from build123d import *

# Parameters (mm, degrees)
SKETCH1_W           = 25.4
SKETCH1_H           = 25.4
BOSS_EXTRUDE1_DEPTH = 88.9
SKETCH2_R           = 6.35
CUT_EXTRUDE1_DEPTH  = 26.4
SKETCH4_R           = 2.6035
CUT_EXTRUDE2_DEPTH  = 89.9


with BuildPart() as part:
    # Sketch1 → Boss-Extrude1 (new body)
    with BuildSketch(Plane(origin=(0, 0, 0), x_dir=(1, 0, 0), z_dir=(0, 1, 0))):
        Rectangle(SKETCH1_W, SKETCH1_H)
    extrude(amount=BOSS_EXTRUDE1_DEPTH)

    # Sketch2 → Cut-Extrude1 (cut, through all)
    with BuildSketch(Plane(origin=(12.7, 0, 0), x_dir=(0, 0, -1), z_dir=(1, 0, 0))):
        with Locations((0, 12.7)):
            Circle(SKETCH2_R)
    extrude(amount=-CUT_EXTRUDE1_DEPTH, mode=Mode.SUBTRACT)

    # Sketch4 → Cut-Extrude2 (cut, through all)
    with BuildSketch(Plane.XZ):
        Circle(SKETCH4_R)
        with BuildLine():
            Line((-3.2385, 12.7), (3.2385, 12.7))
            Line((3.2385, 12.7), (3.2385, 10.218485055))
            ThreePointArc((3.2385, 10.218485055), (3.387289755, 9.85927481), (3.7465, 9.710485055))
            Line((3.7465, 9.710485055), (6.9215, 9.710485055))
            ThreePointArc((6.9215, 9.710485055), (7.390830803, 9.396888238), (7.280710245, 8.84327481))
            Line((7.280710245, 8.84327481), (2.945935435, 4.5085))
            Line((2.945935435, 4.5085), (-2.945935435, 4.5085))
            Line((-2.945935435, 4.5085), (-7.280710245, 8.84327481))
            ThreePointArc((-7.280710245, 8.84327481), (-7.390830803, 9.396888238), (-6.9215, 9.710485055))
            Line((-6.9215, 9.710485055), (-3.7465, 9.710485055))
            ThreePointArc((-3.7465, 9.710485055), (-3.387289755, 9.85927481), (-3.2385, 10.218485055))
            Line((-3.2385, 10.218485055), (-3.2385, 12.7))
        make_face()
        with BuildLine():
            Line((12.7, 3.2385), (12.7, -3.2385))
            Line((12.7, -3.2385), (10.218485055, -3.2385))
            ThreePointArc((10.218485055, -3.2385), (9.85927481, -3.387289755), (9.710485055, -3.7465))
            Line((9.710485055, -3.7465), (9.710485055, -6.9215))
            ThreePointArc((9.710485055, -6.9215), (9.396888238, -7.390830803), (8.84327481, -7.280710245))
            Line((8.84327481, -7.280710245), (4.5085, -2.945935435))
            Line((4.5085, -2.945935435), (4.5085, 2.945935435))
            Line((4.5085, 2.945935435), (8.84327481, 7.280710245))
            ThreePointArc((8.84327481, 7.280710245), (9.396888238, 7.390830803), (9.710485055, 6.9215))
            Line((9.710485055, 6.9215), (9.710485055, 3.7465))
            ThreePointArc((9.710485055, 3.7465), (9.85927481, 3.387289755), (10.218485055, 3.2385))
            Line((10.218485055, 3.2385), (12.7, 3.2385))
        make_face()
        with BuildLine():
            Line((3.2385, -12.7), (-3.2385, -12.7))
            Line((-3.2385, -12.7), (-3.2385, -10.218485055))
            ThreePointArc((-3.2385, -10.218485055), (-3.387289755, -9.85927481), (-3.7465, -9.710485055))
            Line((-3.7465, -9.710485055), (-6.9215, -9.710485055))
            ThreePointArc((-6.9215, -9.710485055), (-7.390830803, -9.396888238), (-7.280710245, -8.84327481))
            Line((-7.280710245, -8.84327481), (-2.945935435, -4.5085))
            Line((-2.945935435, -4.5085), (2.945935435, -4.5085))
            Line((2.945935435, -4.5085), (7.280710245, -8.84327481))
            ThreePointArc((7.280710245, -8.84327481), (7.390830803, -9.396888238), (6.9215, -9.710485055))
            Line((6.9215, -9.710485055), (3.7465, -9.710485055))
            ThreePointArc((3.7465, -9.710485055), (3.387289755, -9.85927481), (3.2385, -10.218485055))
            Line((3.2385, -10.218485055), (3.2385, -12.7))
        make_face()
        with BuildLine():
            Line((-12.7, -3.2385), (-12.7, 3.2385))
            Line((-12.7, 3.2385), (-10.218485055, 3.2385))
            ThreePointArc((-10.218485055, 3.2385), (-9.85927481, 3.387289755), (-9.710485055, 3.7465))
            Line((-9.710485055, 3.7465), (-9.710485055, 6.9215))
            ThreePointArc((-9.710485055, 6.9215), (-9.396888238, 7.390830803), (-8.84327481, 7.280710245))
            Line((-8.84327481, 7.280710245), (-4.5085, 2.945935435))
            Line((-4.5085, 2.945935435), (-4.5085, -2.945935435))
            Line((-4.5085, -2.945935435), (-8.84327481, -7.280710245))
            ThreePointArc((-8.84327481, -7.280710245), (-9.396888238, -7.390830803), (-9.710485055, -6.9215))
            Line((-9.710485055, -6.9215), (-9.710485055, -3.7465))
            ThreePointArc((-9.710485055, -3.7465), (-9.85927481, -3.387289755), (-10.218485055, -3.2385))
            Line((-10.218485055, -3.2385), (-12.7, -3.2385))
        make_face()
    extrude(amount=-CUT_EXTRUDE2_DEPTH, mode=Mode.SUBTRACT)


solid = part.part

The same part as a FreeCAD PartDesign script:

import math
import FreeCAD as App
import Part
import Sketcher
Q = App.Units.Quantity


def add_polygon(sketch, points):
    """Adds a closed chain of lines whose ends are joined by coincident constraints."""
    first, n = sketch.GeometryCount, len(points)
    for a, b in zip(points, points[1:] + points[:1]):
        sketch.addGeometry(Part.LineSegment(App.Vector(*a, 0), App.Vector(*b, 0)), False)
    for i in range(n):
        sketch.addConstraint(Sketcher.Constraint("Coincident", first + i, 2, first + (i + 1) % n, 1))

doc = App.newDocument("Part")
params = doc.addObject("Spreadsheet::Sheet", "Params")
for row, (alias, value) in enumerate([
    ("sketch1_width", "1 in"),
    ("pad1_length", "3.5 in"),
    ("sketch2_diameter", "0.5 in"),
    ("sketch3_radius", "0.02 in"),
    ("sketch3_diameter", "0.205 in"),
    ("sketch3_width", "0.255 in"),
    ("sketch3_width2", "0.125 in"),
], start=1):
    params.set(f"A{row}", alias)
    params.set(f"B{row}", "=" + value)
    params.setAlias(f"B{row}", alias)

body = doc.addObject("PartDesign::Body", "Body")

sketch1 = body.newObject("Sketcher::SketchObject", "Sketch")
sketch1.AttachmentSupport = (doc.getObject("XZ_Plane"), [""])
sketch1.MapMode = "FlatFace"
add_polygon(sketch1, [(-13, -13), (-13, 13), (13, 13), (13, -13)])
sketch1.addConstraint(Sketcher.Constraint("Vertical", 0))
sketch1.addConstraint(Sketcher.Constraint("Horizontal", 1))
sketch1.addConstraint(Sketcher.Constraint("Vertical", 2))
sketch1.addConstraint(Sketcher.Constraint("Horizontal", 3))
sketch1.addConstraint(Sketcher.Constraint("Symmetric", 0, 2, 2, 2, -1, 1))
sketch1.addConstraint(Sketcher.Constraint("Equal", 3, 0))
sketch1.addConstraint(Sketcher.Constraint("DistanceX", 1, 1, 1, 2, Q("1 in")))
sketch1.setExpression("Constraints[10]", "Params.sketch1_width")
pad1 = body.newObject("PartDesign::Pad", "Pad")
pad1.Profile = sketch1
pad1.setExpression("Length", "Params.pad1_length")
pad1.Reversed = True

sketch2 = body.newObject("Sketcher::SketchObject", "Sketch001")
sketch2.AttachmentSupport = (doc.getObject("YZ_Plane"), [""])
sketch2.MapMode = "FlatFace"
sketch2.AttachmentOffset = App.Placement(App.Vector(0, 0, 0.5 * 25.4), App.Rotation())
sketch2.addGeometry(Part.Circle(App.Vector(13, 0, 0), App.Vector(0, 0, 1), 6), False)
sketch2.addConstraint(Sketcher.Constraint("PointOnObject", 0, 3, -1))
sketch2.addConstraint(Sketcher.Constraint("Diameter", 0, Q("0.5 in")))
sketch2.addConstraint(Sketcher.Constraint("DistanceX", -1, 1, 0, 3, Q("0.5 in")))
sketch2.setExpression("Constraints[1]", "Params.sketch2_diameter")
pocket1 = body.newObject("PartDesign::Pocket", "Pocket")
pocket1.Profile = sketch2
pocket1.Type = "ThroughAll"

sketch3 = body.newObject("Sketcher::SketchObject", "Sketch002")
sketch3.AttachmentSupport = (doc.getObject("XZ_Plane"), [""])
sketch3.MapMode = "FlatFace"
sketch3.addGeometry(Part.Circle(App.Vector(0, 0, 0), App.Vector(0, 0, 1), 2.6), False)
sketch3.addGeometry(Part.LineSegment(App.Vector(3.2, 12.7, 0), App.Vector(-3.2, 12.7, 0)), False)
sketch3.addGeometry(Part.LineSegment(App.Vector(-3.2, 12.7, 0), App.Vector(-3.2, 10.2, 0)), False)
sketch3.addGeometry(Part.ArcOfCircle(Part.Circle(App.Vector(-3.7, 10.2, 0), App.Vector(0, 0, 1), 0.5), math.radians(-90), math.radians(0)), False)
sketch3.addGeometry(Part.LineSegment(App.Vector(-3.7, 9.7, 0), App.Vector(-6.9, 9.7, 0)), False)
sketch3.addGeometry(Part.ArcOfCircle(Part.Circle(App.Vector(-6.9, 9.2, 0), App.Vector(0, 0, 1), 0.5), math.radians(90), math.radians(225)), False)
sketch3.addGeometry(Part.LineSegment(App.Vector(-7.3, 8.8, 0), App.Vector(-2.9, 4.5, 0)), False)
sketch3.addGeometry(Part.LineSegment(App.Vector(-2.9, 4.5, 0), App.Vector(2.9, 4.5, 0)), False)
sketch3.addGeometry(Part.LineSegment(App.Vector(2.9, 4.5, 0), App.Vector(7.3, 8.8, 0)), False)
sketch3.addGeometry(Part.ArcOfCircle(Part.Circle(App.Vector(6.9, 9.2, 0), App.Vector(0, 0, 1), 0.5), math.radians(-45), math.radians(90)), False)
sketch3.addGeometry(Part.LineSegment(App.Vector(6.9, 9.7, 0), App.Vector(3.7, 9.7, 0)), False)
sketch3.addGeometry(Part.ArcOfCircle(Part.Circle(App.Vector(3.7, 10.2, 0), App.Vector(0, 0, 1), 0.5), math.radians(180), math.radians(270)), False)
sketch3.addGeometry(Part.LineSegment(App.Vector(3.2, 10.2, 0), App.Vector(3.2, 12.7, 0)), False)
sketch3.addGeometry(Part.LineSegment(App.Vector(12.7, -3.2, 0), App.Vector(12.7, 3.2, 0)), False)
sketch3.addGeometry(Part.LineSegment(App.Vector(12.7, 3.2, 0), App.Vector(10.2, 3.2, 0)), False)
sketch3.addGeometry(Part.ArcOfCircle(Part.Circle(App.Vector(10.2, 3.7, 0), App.Vector(0, 0, 1), 0.5), math.radians(180), math.radians(270)), False)
sketch3.addGeometry(Part.LineSegment(App.Vector(9.7, 3.7, 0), App.Vector(9.7, 6.9, 0)), False)
sketch3.addGeometry(Part.ArcOfCircle(Part.Circle(App.Vector(9.2, 6.9, 0), App.Vector(0, 0, 1), 0.5), math.radians(0), math.radians(135)), False)
sketch3.addGeometry(Part.LineSegment(App.Vector(8.8, 7.3, 0), App.Vector(4.5, 2.9, 0)), False)
sketch3.addGeometry(Part.LineSegment(App.Vector(4.5, 2.9, 0), App.Vector(4.5, -2.9, 0)), False)
sketch3.addGeometry(Part.LineSegment(App.Vector(4.5, -2.9, 0), App.Vector(8.8, -7.3, 0)), False)
sketch3.addGeometry(Part.ArcOfCircle(Part.Circle(App.Vector(9.2, -6.9, 0), App.Vector(0, 0, 1), 0.5), math.radians(-135), math.radians(0)), False)
sketch3.addGeometry(Part.LineSegment(App.Vector(9.7, -6.9, 0), App.Vector(9.7, -3.7, 0)), False)
sketch3.addGeometry(Part.ArcOfCircle(Part.Circle(App.Vector(10.2, -3.7, 0), App.Vector(0, 0, 1), 0.5), math.radians(90), math.radians(180)), False)
sketch3.addGeometry(Part.LineSegment(App.Vector(10.2, -3.2, 0), App.Vector(12.7, -3.2, 0)), False)
sketch3.addGeometry(Part.LineSegment(App.Vector(-3.2, -12.7, 0), App.Vector(3.2, -12.7, 0)), False)
sketch3.addGeometry(Part.LineSegment(App.Vector(3.2, -12.7, 0), App.Vector(3.2, -10.2, 0)), False)
sketch3.addGeometry(Part.ArcOfCircle(Part.Circle(App.Vector(3.7, -10.2, 0), App.Vector(0, 0, 1), 0.5), math.radians(90), math.radians(180)), False)
sketch3.addGeometry(Part.LineSegment(App.Vector(3.7, -9.7, 0), App.Vector(6.9, -9.7, 0)), False)
sketch3.addGeometry(Part.ArcOfCircle(Part.Circle(App.Vector(6.9, -9.2, 0), App.Vector(0, 0, 1), 0.5), math.radians(-90), math.radians(45)), False)
sketch3.addGeometry(Part.LineSegment(App.Vector(7.3, -8.8, 0), App.Vector(2.9, -4.5, 0)), False)
sketch3.addGeometry(Part.LineSegment(App.Vector(2.9, -4.5, 0), App.Vector(-2.9, -4.5, 0)), False)
sketch3.addGeometry(Part.LineSegment(App.Vector(-2.9, -4.5, 0), App.Vector(-7.3, -8.8, 0)), False)
sketch3.addGeometry(Part.ArcOfCircle(Part.Circle(App.Vector(-6.9, -9.2, 0), App.Vector(0, 0, 1), 0.5), math.radians(135), math.radians(270)), False)
sketch3.addGeometry(Part.LineSegment(App.Vector(-6.9, -9.7, 0), App.Vector(-3.7, -9.7, 0)), False)
sketch3.addGeometry(Part.ArcOfCircle(Part.Circle(App.Vector(-3.7, -10.2, 0), App.Vector(0, 0, 1), 0.5), math.radians(0), math.radians(90)), False)
sketch3.addGeometry(Part.LineSegment(App.Vector(-3.2, -10.2, 0), App.Vector(-3.2, -12.7, 0)), False)
sketch3.addGeometry(Part.LineSegment(App.Vector(-12.7, 3.2, 0), App.Vector(-12.7, -3.2, 0)), False)
sketch3.addGeometry(Part.LineSegment(App.Vector(-12.7, -3.2, 0), App.Vector(-10.2, -3.2, 0)), False)
sketch3.addGeometry(Part.ArcOfCircle(Part.Circle(App.Vector(-10.2, -3.7, 0), App.Vector(0, 0, 1), 0.5), math.radians(0), math.radians(90)), False)
sketch3.addGeometry(Part.LineSegment(App.Vector(-9.7, -3.7, 0), App.Vector(-9.7, -6.9, 0)), False)
sketch3.addGeometry(Part.ArcOfCircle(Part.Circle(App.Vector(-9.2, -6.9, 0), App.Vector(0, 0, 1), 0.5), math.radians(180), math.radians(315)), False)
sketch3.addGeometry(Part.LineSegment(App.Vector(-8.8, -7.3, 0), App.Vector(-4.5, -2.9, 0)), False)
sketch3.addGeometry(Part.LineSegment(App.Vector(-4.5, -2.9, 0), App.Vector(-4.5, 2.9, 0)), False)
sketch3.addGeometry(Part.LineSegment(App.Vector(-4.5, 2.9, 0), App.Vector(-8.8, 7.3, 0)), False)
sketch3.addGeometry(Part.ArcOfCircle(Part.Circle(App.Vector(-9.2, 6.9, 0), App.Vector(0, 0, 1), 0.5), math.radians(45), math.radians(180)), False)
sketch3.addGeometry(Part.LineSegment(App.Vector(-9.7, 6.9, 0), App.Vector(-9.7, 3.7, 0)), False)
sketch3.addGeometry(Part.ArcOfCircle(Part.Circle(App.Vector(-10.2, 3.7, 0), App.Vector(0, 0, 1), 0.5), math.radians(-90), math.radians(0)), False)
sketch3.addGeometry(Part.LineSegment(App.Vector(-10.2, 3.2, 0), App.Vector(-12.7, 3.2, 0)), False)
sketch3.addConstraint(Sketcher.Constraint("Coincident", 1, 2, 2, 1))
sketch3.addConstraint(Sketcher.Constraint("Tangent", 2, 2, 3, 2))
sketch3.addConstraint(Sketcher.Constraint("Tangent", 3, 1, 4, 1))
sketch3.addConstraint(Sketcher.Constraint("Tangent", 4, 2, 5, 1))
sketch3.addConstraint(Sketcher.Constraint("Tangent", 5, 2, 6, 1))
sketch3.addConstraint(Sketcher.Constraint("Coincident", 6, 2, 7, 1))
sketch3.addConstraint(Sketcher.Constraint("Coincident", 7, 2, 8, 1))
sketch3.addConstraint(Sketcher.Constraint("Tangent", 8, 2, 9, 1))
sketch3.addConstraint(Sketcher.Constraint("Tangent", 9, 2, 10, 1))
sketch3.addConstraint(Sketcher.Constraint("Tangent", 10, 2, 11, 2))
sketch3.addConstraint(Sketcher.Constraint("Tangent", 11, 1, 12, 1))
sketch3.addConstraint(Sketcher.Constraint("Coincident", 12, 2, 1, 1))
sketch3.addConstraint(Sketcher.Constraint("Coincident", 13, 2, 14, 1))
sketch3.addConstraint(Sketcher.Constraint("Tangent", 14, 2, 15, 2))
sketch3.addConstraint(Sketcher.Constraint("Tangent", 15, 1, 16, 1))
sketch3.addConstraint(Sketcher.Constraint("Tangent", 16, 2, 17, 1))
sketch3.addConstraint(Sketcher.Constraint("Tangent", 17, 2, 18, 1))
sketch3.addConstraint(Sketcher.Constraint("Coincident", 18, 2, 19, 1))
sketch3.addConstraint(Sketcher.Constraint("Coincident", 19, 2, 20, 1))
sketch3.addConstraint(Sketcher.Constraint("Tangent", 20, 2, 21, 1))
sketch3.addConstraint(Sketcher.Constraint("Tangent", 21, 2, 22, 1))
sketch3.addConstraint(Sketcher.Constraint("Tangent", 22, 2, 23, 2))
sketch3.addConstraint(Sketcher.Constraint("Tangent", 23, 1, 24, 1))
sketch3.addConstraint(Sketcher.Constraint("Coincident", 24, 2, 13, 1))
sketch3.addConstraint(Sketcher.Constraint("Coincident", 25, 2, 26, 1))
sketch3.addConstraint(Sketcher.Constraint("Tangent", 26, 2, 27, 2))
sketch3.addConstraint(Sketcher.Constraint("Tangent", 27, 1, 28, 1))
sketch3.addConstraint(Sketcher.Constraint("Tangent", 28, 2, 29, 1))
sketch3.addConstraint(Sketcher.Constraint("Tangent", 29, 2, 30, 1))
sketch3.addConstraint(Sketcher.Constraint("Coincident", 30, 2, 31, 1))
sketch3.addConstraint(Sketcher.Constraint("Coincident", 31, 2, 32, 1))
sketch3.addConstraint(Sketcher.Constraint("Tangent", 32, 2, 33, 1))
sketch3.addConstraint(Sketcher.Constraint("Tangent", 33, 2, 34, 1))
sketch3.addConstraint(Sketcher.Constraint("Tangent", 34, 2, 35, 2))
sketch3.addConstraint(Sketcher.Constraint("Tangent", 35, 1, 36, 1))
sketch3.addConstraint(Sketcher.Constraint("Coincident", 36, 2, 25, 1))
sketch3.addConstraint(Sketcher.Constraint("Coincident", 37, 2, 38, 1))
sketch3.addConstraint(Sketcher.Constraint("Tangent", 38, 2, 39, 2))
sketch3.addConstraint(Sketcher.Constraint("Tangent", 39, 1, 40, 1))
sketch3.addConstraint(Sketcher.Constraint("Tangent", 40, 2, 41, 1))
sketch3.addConstraint(Sketcher.Constraint("Tangent", 41, 2, 42, 1))
sketch3.addConstraint(Sketcher.Constraint("Coincident", 42, 2, 43, 1))
sketch3.addConstraint(Sketcher.Constraint("Coincident", 43, 2, 44, 1))
sketch3.addConstraint(Sketcher.Constraint("Tangent", 44, 2, 45, 1))
sketch3.addConstraint(Sketcher.Constraint("Tangent", 45, 2, 46, 1))
sketch3.addConstraint(Sketcher.Constraint("Tangent", 46, 2, 47, 2))
sketch3.addConstraint(Sketcher.Constraint("Tangent", 47, 1, 48, 1))
sketch3.addConstraint(Sketcher.Constraint("Coincident", 48, 2, 37, 1))
sketch3.addConstraint(Sketcher.Constraint("Horizontal", 1))
sketch3.addConstraint(Sketcher.Constraint("Vertical", 2))
sketch3.addConstraint(Sketcher.Constraint("Horizontal", 4))
sketch3.addConstraint(Sketcher.Constraint("Horizontal", 7))
sketch3.addConstraint(Sketcher.Constraint("Horizontal", 10))
sketch3.addConstraint(Sketcher.Constraint("Vertical", 12))
sketch3.addConstraint(Sketcher.Constraint("Vertical", 13))
sketch3.addConstraint(Sketcher.Constraint("Horizontal", 14))
sketch3.addConstraint(Sketcher.Constraint("Vertical", 16))
sketch3.addConstraint(Sketcher.Constraint("Vertical", 19))
sketch3.addConstraint(Sketcher.Constraint("Vertical", 22))
sketch3.addConstraint(Sketcher.Constraint("Horizontal", 24))
sketch3.addConstraint(Sketcher.Constraint("Horizontal", 25))
sketch3.addConstraint(Sketcher.Constraint("Vertical", 26))
sketch3.addConstraint(Sketcher.Constraint("Horizontal", 28))
sketch3.addConstraint(Sketcher.Constraint("Horizontal", 31))
sketch3.addConstraint(Sketcher.Constraint("Horizontal", 34))
sketch3.addConstraint(Sketcher.Constraint("Vertical", 36))
sketch3.addConstraint(Sketcher.Constraint("Vertical", 37))
sketch3.addConstraint(Sketcher.Constraint("Horizontal", 38))
sketch3.addConstraint(Sketcher.Constraint("Vertical", 40))
sketch3.addConstraint(Sketcher.Constraint("Vertical", 43))
sketch3.addConstraint(Sketcher.Constraint("Vertical", 46))
sketch3.addConstraint(Sketcher.Constraint("Horizontal", 48))
sketch3.addConstraint(Sketcher.Constraint("Coincident", 0, 3, -1, 1))
sketch3.addConstraint(Sketcher.Constraint("Equal", 3, 5))
sketch3.addConstraint(Sketcher.Constraint("Equal", 5, 9))
sketch3.addConstraint(Sketcher.Constraint("Equal", 9, 11))
sketch3.addConstraint(Sketcher.Constraint("Equal", 11, 15))
sketch3.addConstraint(Sketcher.Constraint("Equal", 15, 17))
sketch3.addConstraint(Sketcher.Constraint("Equal", 17, 21))
sketch3.addConstraint(Sketcher.Constraint("Equal", 21, 23))
sketch3.addConstraint(Sketcher.Constraint("Equal", 23, 27))
sketch3.addConstraint(Sketcher.Constraint("Equal", 27, 29))
sketch3.addConstraint(Sketcher.Constraint("Equal", 29, 33))
sketch3.addConstraint(Sketcher.Constraint("Equal", 33, 35))
sketch3.addConstraint(Sketcher.Constraint("Equal", 35, 39))
sketch3.addConstraint(Sketcher.Constraint("Equal", 39, 41))
sketch3.addConstraint(Sketcher.Constraint("Equal", 41, 45))
sketch3.addConstraint(Sketcher.Constraint("Equal", 45, 47))
sketch3.addConstraint(Sketcher.Constraint("Symmetric", 3, 3, 27, 3, -1, 1))
sketch3.addConstraint(Sketcher.Constraint("Symmetric", 9, 3, 33, 3, -1, 1))
sketch3.addConstraint(Sketcher.Constraint("Symmetric", 15, 3, 39, 3, -1, 1))
sketch3.addConstraint(Sketcher.Constraint("Symmetric", 21, 3, 45, 3, -1, 1))
sketch3.addConstraint(Sketcher.Constraint("Symmetric", 5, 2, 29, 2, -1, 1))
sketch3.addConstraint(Sketcher.Constraint("Symmetric", 7, 2, 31, 2, -1, 1))
sketch3.addConstraint(Sketcher.Constraint("Symmetric", 12, 2, 36, 2, -1, 1))
sketch3.addConstraint(Sketcher.Constraint("Symmetric", 17, 2, 41, 2, -1, 1))
sketch3.addConstraint(Sketcher.Constraint("Symmetric", 19, 2, 43, 2, -1, 1))
sketch3.addConstraint(Sketcher.Constraint("Symmetric", 24, 2, 48, 2, -1, 1))
sketch3.addConstraint(Sketcher.Constraint("Symmetric", 5, 3, 9, 3, -2))
sketch3.addConstraint(Sketcher.Constraint("Symmetric", 23, 3, 39, 3, -2))
sketch3.addConstraint(Sketcher.Constraint("Symmetric", 20, 2, 41, 2, -2))
sketch3.addConstraint(Sketcher.Constraint("Perpendicular", 6, 8))
sketch3.addConstraint(Sketcher.Constraint("Parallel", 8, 18))
sketch3.addConstraint(Sketcher.Constraint("Perpendicular", 18, 20))
sketch3.addConstraint(Sketcher.Constraint("Vertical", 11, 3, 27, 3))
sketch3.addConstraint(Sketcher.Constraint("Equal", 48, 2))
sketch3.addConstraint(Sketcher.Constraint("Equal", 25, 13))
sketch3.addConstraint(Sketcher.Constraint("Equal", 34, 16))
sketch3.addConstraint(Sketcher.Constraint("Equal", 31, 19))
sketch3.addConstraint(Sketcher.Constraint("Radius", 3, Q("0.02 in")))
sketch3.addConstraint(Sketcher.Constraint("Diameter", 0, Q("0.205 in")))
sketch3.addConstraint(Sketcher.Constraint("DistanceY", -1, 1, 1, 2, Q("0.5 in")))
sketch3.addConstraint(Sketcher.Constraint("DistanceX", -1, 1, 13, 2, Q("0.5 in")))
sketch3.addConstraint(Sketcher.Constraint("DistanceX", 1, 2, 1, 1, Q("0.255 in")))
sketch3.addConstraint(Sketcher.Constraint("DistanceX", 4, 2, 4, 1, Q("0.125 in")))
sketch3.addConstraint(Sketcher.Constraint("DistanceY", -1, 1, 6, 2, Q("0.1775 in")))
sketch3.addConstraint(Sketcher.Constraint("DistanceX", 7, 1, 7, 2, 5.891871))
sketch3.setExpression("Constraints[109]", "Params.sketch3_radius")
sketch3.setExpression("Constraints[110]", "Params.sketch3_diameter")
sketch3.setExpression("Constraints[113]", "Params.sketch3_width")
sketch3.setExpression("Constraints[114]", "Params.sketch3_width2")
pocket2 = body.newObject("PartDesign::Pocket", "Pocket001")
pocket2.Profile = sketch3
pocket2.Type = "ThroughAll"

doc.recompute()
